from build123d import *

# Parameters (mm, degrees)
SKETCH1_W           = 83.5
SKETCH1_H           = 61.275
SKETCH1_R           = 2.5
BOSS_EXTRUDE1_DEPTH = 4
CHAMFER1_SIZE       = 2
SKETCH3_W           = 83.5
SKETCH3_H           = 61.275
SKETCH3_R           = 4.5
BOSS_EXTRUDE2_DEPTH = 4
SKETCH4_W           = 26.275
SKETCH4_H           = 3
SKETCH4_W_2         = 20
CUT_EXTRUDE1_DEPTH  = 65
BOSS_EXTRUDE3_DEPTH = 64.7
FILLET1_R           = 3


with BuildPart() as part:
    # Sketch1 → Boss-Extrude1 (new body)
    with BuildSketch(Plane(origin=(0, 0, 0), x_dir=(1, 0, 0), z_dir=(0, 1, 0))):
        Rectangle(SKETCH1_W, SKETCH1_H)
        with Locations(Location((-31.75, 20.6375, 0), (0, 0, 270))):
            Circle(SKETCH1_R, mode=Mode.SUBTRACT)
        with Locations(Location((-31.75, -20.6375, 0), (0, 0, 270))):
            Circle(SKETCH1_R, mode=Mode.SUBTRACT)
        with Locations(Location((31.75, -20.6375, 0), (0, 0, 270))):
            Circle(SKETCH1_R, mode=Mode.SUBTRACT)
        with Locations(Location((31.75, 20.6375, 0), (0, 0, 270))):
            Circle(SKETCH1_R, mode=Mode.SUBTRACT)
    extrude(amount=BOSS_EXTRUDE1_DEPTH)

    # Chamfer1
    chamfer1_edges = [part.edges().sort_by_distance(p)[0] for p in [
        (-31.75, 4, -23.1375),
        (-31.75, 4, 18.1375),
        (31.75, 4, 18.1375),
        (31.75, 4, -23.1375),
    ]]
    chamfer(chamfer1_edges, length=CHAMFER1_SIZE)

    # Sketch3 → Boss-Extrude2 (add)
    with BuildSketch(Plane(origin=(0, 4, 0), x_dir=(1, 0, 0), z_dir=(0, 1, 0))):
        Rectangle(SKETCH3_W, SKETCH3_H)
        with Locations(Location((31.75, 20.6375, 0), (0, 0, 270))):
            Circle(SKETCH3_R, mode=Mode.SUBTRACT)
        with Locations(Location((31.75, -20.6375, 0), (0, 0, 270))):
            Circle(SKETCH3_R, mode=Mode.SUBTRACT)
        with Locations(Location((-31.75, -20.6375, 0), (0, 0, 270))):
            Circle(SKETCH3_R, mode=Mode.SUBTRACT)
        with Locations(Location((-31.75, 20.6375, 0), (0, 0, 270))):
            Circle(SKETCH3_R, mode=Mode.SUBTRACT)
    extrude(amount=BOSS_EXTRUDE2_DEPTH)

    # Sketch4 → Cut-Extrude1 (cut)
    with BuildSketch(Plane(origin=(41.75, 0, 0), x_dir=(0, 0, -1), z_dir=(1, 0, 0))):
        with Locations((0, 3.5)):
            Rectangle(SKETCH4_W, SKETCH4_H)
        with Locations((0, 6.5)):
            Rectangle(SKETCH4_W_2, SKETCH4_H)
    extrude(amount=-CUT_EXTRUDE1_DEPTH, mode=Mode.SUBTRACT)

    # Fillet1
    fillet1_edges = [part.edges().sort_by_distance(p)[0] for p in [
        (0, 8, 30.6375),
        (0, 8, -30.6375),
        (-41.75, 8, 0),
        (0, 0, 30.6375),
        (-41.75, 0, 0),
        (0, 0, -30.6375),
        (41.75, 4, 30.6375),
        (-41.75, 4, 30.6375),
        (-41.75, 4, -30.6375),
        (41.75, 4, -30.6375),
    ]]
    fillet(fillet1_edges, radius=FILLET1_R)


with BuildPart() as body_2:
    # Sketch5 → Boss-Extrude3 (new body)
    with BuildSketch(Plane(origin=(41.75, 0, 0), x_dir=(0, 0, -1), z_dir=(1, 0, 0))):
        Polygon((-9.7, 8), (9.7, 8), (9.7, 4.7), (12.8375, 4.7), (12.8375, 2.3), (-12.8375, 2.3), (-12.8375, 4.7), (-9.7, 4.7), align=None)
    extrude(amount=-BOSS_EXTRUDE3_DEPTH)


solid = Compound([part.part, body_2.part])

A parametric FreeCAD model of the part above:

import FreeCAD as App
import Part
import Sketcher

V = App.Vector
Q = App.Units.Quantity


def edges_at(feature, points):
    """Names of the edges that pass closest to the given points."""
    edges = feature.Shape.Edges
    near = lambda p: min(range(len(edges)), key=lambda i: edges[i].distToShape(Part.Vertex(*p))[0])
    return sorted({f"Edge{near(p) + 1}" for p in points})

doc = App.newDocument("Part")
params = doc.addObject("Spreadsheet::Sheet", "Params")
for row, (alias, value) in enumerate([
    ("sketch1_diameter", "5 mm"),
    ("sketch1_width", "83.5 mm"),
    ("pad1_length", "4 mm"),
    ("chamfer_size", "2 mm"),
    ("sketch2_diameter", "9 mm"),
    ("sketch2_width", "83.5 mm"),
    ("pad2_length", "4 mm"),
    ("sketch3_width", "3 mm"),
    ("sketch3_height", "20 mm"),
    ("pocket1_length", "65 mm"),
    ("fillet_radius", "3 mm"),
    ("sketch4_width", "3.3 mm"),
    ("sketch4_width2", "2.4 mm"),
    ("sketch4_height", "19.4 mm"),
    ("pad3_length", "64.7 mm"),
], start=1):
    params.set(f"A{row}", alias)
    params.set(f"B{row}", "=" + value)
    params.setAlias(f"B{row}", alias)

body = doc.addObject("PartDesign::Body", "Body")

sketch1 = body.newObject("Sketcher::SketchObject", "Sketch")
sketch1.AttachmentSupport = (doc.getObject("XZ_Plane"), [""])
sketch1.MapMode = "FlatFace"
sketch1.addGeometry([
    Part.LineSegment(V(-41.8, -30.6, 0), V(-41.8, 30.6, 0)),
    Part.LineSegment(V(-41.8, 30.6, 0), V(41.8, 30.6, 0)),
    Part.LineSegment(V(41.8, 30.6, 0), V(41.8, -30.6, 0)),
    Part.LineSegment(V(41.8, -30.6, 0), V(-41.8, -30.6, 0)),
    Part.Circle(V(-31.8, 20.6, 0), V(0, 0, 1), 2.5),
    Part.Circle(V(31.8, 20.6, 0), V(0, 0, 1), 2.5),
    Part.Circle(V(-31.8, -20.6, 0), V(0, 0, 1), 2.5),
    Part.Circle(V(31.8, -20.6, 0), V(0, 0, 1), 2.5),
], False)
sketch1.addConstraint([
    Sketcher.Constraint("Coincident", 0, 2, 1, 1),
    Sketcher.Constraint("Coincident", 1, 2, 2, 1),
    Sketcher.Constraint("Coincident", 2, 2, 3, 1),
    Sketcher.Constraint("Coincident", 3, 2, 0, 1),
    Sketcher.Constraint("Vertical", 0),
    Sketcher.Constraint("Horizontal", 1),
    Sketcher.Constraint("Vertical", 2),
    Sketcher.Constraint("Horizontal", 3),
    Sketcher.Constraint("Equal", 4, 5),
    Sketcher.Constraint("Equal", 5, 6),
    Sketcher.Constraint("Equal", 6, 7),
    Sketcher.Constraint("Symmetric", 5, 3, 6, 3, -1, 1),
    Sketcher.Constraint("Symmetric", 4, 3, 7, 3, -1, 1),
    Sketcher.Constraint("Symmetric", 0, 2, 2, 2, -1, 1),
    Sketcher.Constraint("Symmetric", 4, 3, 5, 3, -2),
    Sketcher.Constraint("Diameter", 4, Q("5 mm")),
    Sketcher.Constraint("DistanceX", 1, 1, 1, 2, Q("83.5 mm")),
    Sketcher.Constraint("DistanceX", 0, 2, 4, 3, Q("10 mm")),
    Sketcher.Constraint("DistanceY", 4, 3, 0, 2, Q("10 mm")),
    Sketcher.Constraint("DistanceY", 0, 1, 0, 2, Q("61.275 mm")),
])
sketch1.setExpression("Constraints[15]", "Params.sketch1_diameter")
sketch1.setExpression("Constraints[16]", "Params.sketch1_width")
pad1 = body.newObject("PartDesign::Pad", "Pad")
pad1.Profile = sketch1
pad1.setExpression("Length", "Params.pad1_length")
pad1.Reversed = True
doc.recompute()

chamfer = body.newObject("PartDesign::Chamfer", "Chamfer")
chamfer.Base = (pad1, edges_at(pad1, [
    (-31.75, 4, -23.137),
    (-31.75, 4, 18.137),
    (31.75, 4, 18.137),
    (31.75, 4, -23.137),
]))
chamfer.setExpression("Size", "Params.chamfer_size")

sketch2 = body.newObject("Sketcher::SketchObject", "Sketch001")
sketch2.AttachmentSupport = (doc.getObject("XZ_Plane"), [""])
sketch2.MapMode = "FlatFace"
sketch2.AttachmentOffset = App.Placement(V(0, 0, -4), App.Rotation())
sketch2.addGeometry([
    Part.LineSegment(V(-41.8, -30.6, 0), V(-41.8, 30.6, 0)),
    Part.LineSegment(V(-41.8, 30.6, 0), V(41.8, 30.6, 0)),
    Part.LineSegment(V(41.8, 30.6, 0), V(41.8, -30.6, 0)),
    Part.LineSegment(V(41.8, -30.6, 0), V(-41.8, -30.6, 0)),
    Part.Circle(V(-31.8, 20.6, 0), V(0, 0, 1), 4.5),
    Part.Circle(V(31.8, 20.6, 0), V(0, 0, 1), 4.5),
    Part.Circle(V(-31.8, -20.6, 0), V(0, 0, 1), 4.5),
    Part.Circle(V(31.8, -20.6, 0), V(0, 0, 1), 4.5),
], False)
sketch2.addConstraint([
    Sketcher.Constraint("Coincident", 0, 2, 1, 1),
    Sketcher.Constraint("Coincident", 1, 2, 2, 1),
    Sketcher.Constraint("Coincident", 2, 2, 3, 1),
    Sketcher.Constraint("Coincident", 3, 2, 0, 1),
    Sketcher.Constraint("Vertical", 0),
    Sketcher.Constraint("Horizontal", 1),
    Sketcher.Constraint("Vertical", 2),
    Sketcher.Constraint("Horizontal", 3),
    Sketcher.Constraint("Equal", 4, 5),
    Sketcher.Constraint("Equal", 5, 6),
    Sketcher.Constraint("Equal", 6, 7),
    Sketcher.Constraint("Symmetric", 5, 3, 6, 3, -1, 1),
    Sketcher.Constraint("Symmetric", 4, 3, 7, 3, -1, 1),
    Sketcher.Constraint("Symmetric", 0, 2, 2, 2, -1, 1),
    Sketcher.Constraint("Symmetric", 4, 3, 5, 3, -2),
    Sketcher.Constraint("Diameter", 4, Q("9 mm")),
    Sketcher.Constraint("DistanceX", 1, 1, 1, 2, Q("83.5 mm")),
    Sketcher.Constraint("DistanceX", 0, 2, 4, 3, Q("10 mm")),
    Sketcher.Constraint("DistanceY", 4, 3, 0, 2, Q("10 mm")),
    Sketcher.Constraint("DistanceY", 0, 1, 0, 2, Q("61.275 mm")),
])
sketch2.setExpression("Constraints[15]", "Params.sketch2_diameter")
sketch2.setExpression("Constraints[16]", "Params.sketch2_width")
pad2 = body.newObject("PartDesign::Pad", "Pad001")
pad2.Profile = sketch2
pad2.setExpression("Length", "Params.pad2_length")
pad2.Reversed = True

sketch3 = body.newObject("Sketcher::SketchObject", "Sketch002")
sketch3.AttachmentSupport = (doc.getObject("YZ_Plane"), [""])
sketch3.MapMode = "FlatFace"
sketch3.AttachmentOffset = App.Placement(V(0, 0, 41.75), App.Rotation())
sketch3.addGeometry([
    Part.LineSegment(V(5, 13.1, 0), V(2, 13.1, 0)),
    Part.LineSegment(V(2, 13.1, 0), V(2, -13.1, 0)),
    Part.LineSegment(V(2, -13.1, 0), V(5, -13.1, 0)),
    Part.LineSegment(V(5, -13.1, 0), V(5, -10, 0)),
    Part.LineSegment(V(5, -10, 0), V(8, -10, 0)),
    Part.LineSegment(V(8, -10, 0), V(8, 10, 0)),
    Part.LineSegment(V(8, 10, 0), V(5, 10, 0)),
    Part.LineSegment(V(5, 10, 0), V(5, 13.1, 0)),
], False)
sketch3.addConstraint([
    Sketcher.Constraint("Coincident", 0, 2, 1, 1),
    Sketcher.Constraint("Coincident", 1, 2, 2, 1),
    Sketcher.Constraint("Coincident", 2, 2, 3, 1),
    Sketcher.Constraint("Coincident", 3, 2, 4, 1),
    Sketcher.Constraint("Coincident", 4, 2, 5, 1),
    Sketcher.Constraint("Coincident", 5, 2, 6, 1),
    Sketcher.Constraint("Coincident", 6, 2, 7, 1),
    Sketcher.Constraint("Coincident", 7, 2, 0, 1),
    Sketcher.Constraint("Horizontal", 0),
    Sketcher.Constraint("Vertical", 1),
    Sketcher.Constraint("Horizontal", 2),
    Sketcher.Constraint("Vertical", 3),
    Sketcher.Constraint("Horizontal", 4),
    Sketcher.Constraint("Vertical", 5),
    Sketcher.Constraint("Horizontal", 6),
    Sketcher.Constraint("Vertical", 7),
    Sketcher.Constraint("Symmetric", 3, 2, 6, 2, -1),
    Sketcher.Constraint("Equal", 2, 4),
    Sketcher.Constraint("Equal", 3, 7),
    Sketcher.Constraint("DistanceX", 0, 2, 0, 1, Q("3 mm")),
    Sketcher.Constraint("DistanceY", 5, 1, 5, 2, Q("20 mm")),
    Sketcher.Constraint("DistanceX", -1, 1, 0, 2, Q("2 mm")),
    Sketcher.Constraint("DistanceY", 1, 2, 1, 1, Q("26.275 mm")),
])
sketch3.setExpression("Constraints[19]", "Params.sketch3_width")
sketch3.setExpression("Constraints[20]", "Params.sketch3_height")
pocket1 = body.newObject("PartDesign::Pocket", "Pocket")
pocket1.Profile = sketch3
pocket1.setExpression("Length", "Params.pocket1_length")
doc.recompute()

fillet = body.newObject("PartDesign::Fillet", "Fillet")
fillet.Base = (pocket1, edges_at(pocket1, [
    (0, 8, 30.637),
    (0, 8, -30.637),
    (-41.75, 8, 0),
    (0, 0, 30.637),
    (-41.75, 0, 0),
    (0, 0, -30.637),
    (41.75, 4, 30.637),
    (-41.75, 4, 30.637),
    (-41.75, 4, -30.637),
    (41.75, 4, -30.637),
]))
fillet.setExpression("Radius", "Params.fillet_radius")
body2 = doc.addObject("PartDesign::Body", "Body001")

sketch4 = body2.newObject("Sketcher::SketchObject", "Sketch003")
sketch4.AttachmentSupport = (doc.getObject("YZ_Plane001"), [""])
sketch4.MapMode = "FlatFace"
sketch4.AttachmentOffset = App.Placement(V(0, 0, 41.75), App.Rotation())
sketch4.addGeometry([
    Part.LineSegment(V(8, -9.7, 0), V(8, 9.7, 0)),
    Part.LineSegment(V(8, 9.7, 0), V(4.7, 9.7, 0)),
    Part.LineSegment(V(4.7, 9.7, 0), V(4.7, 12.8, 0)),
    Part.LineSegment(V(4.7, 12.8, 0), V(2.3, 12.8, 0)),
    Part.LineSegment(V(2.3, 12.8, 0), V(2.3, -12.8, 0)),
    Part.LineSegment(V(2.3, -12.8, 0), V(4.7, -12.8, 0)),
    Part.LineSegment(V(4.7, -12.8, 0), V(4.7, -9.7, 0)),
    Part.LineSegment(V(4.7, -9.7, 0), V(8, -9.7, 0)),
], False)
sketch4.addConstraint([
    Sketcher.Constraint("Coincident", 0, 2, 1, 1),
    Sketcher.Constraint("Coincident", 1, 2, 2, 1),
    Sketcher.Constraint("Coincident", 2, 2, 3, 1),
    Sketcher.Constraint("Coincident", 3, 2, 4, 1),
    Sketcher.Constraint("Coincident", 4, 2, 5, 1),
    Sketcher.Constraint("Coincident", 5, 2, 6, 1),
    Sketcher.Constraint("Coincident", 6, 2, 7, 1),
    Sketcher.Constraint("Coincident", 7, 2, 0, 1),
    Sketcher.Constraint("Vertical", 0),
    Sketcher.Constraint("Horizontal", 1),
    Sketcher.Constraint("Vertical", 2),
    Sketcher.Constraint("Horizontal", 3),
    Sketcher.Constraint("Vertical", 4),
    Sketcher.Constraint("Horizontal", 5),
    Sketcher.Constraint("Vertical", 6),
    Sketcher.Constraint("Horizontal", 7),
    Sketcher.Constraint("Symmetric", 2, 2, 5, 2, -1),
    Sketcher.Constraint("Equal", 2, 6),
    Sketcher.Constraint("DistanceX", 1, 2, 1, 1, Q("3.3 mm")),
    Sketcher.Constraint("DistanceX", 3, 2, 3, 1, Q("2.4 mm")),
    Sketcher.Constraint("DistanceY", 0, 1, 0, 2, Q("19.4 mm")),
    Sketcher.Constraint("DistanceX", -1, 1, 0, 2, Q("8 mm")),
    Sketcher.Constraint("DistanceY", 4, 2, 4, 1, Q("25.675 mm")),
])
sketch4.setExpression("Constraints[18]", "Params.sketch4_width")
sketch4.setExpression("Constraints[19]", "Params.sketch4_width2")
sketch4.setExpression("Constraints[20]", "Params.sketch4_height")
pad3 = body2.newObject("PartDesign::Pad", "Pad002")
pad3.Profile = sketch4
pad3.setExpression("Length", "Params.pad3_length")
pad3.Reversed = True

doc.recompute()
